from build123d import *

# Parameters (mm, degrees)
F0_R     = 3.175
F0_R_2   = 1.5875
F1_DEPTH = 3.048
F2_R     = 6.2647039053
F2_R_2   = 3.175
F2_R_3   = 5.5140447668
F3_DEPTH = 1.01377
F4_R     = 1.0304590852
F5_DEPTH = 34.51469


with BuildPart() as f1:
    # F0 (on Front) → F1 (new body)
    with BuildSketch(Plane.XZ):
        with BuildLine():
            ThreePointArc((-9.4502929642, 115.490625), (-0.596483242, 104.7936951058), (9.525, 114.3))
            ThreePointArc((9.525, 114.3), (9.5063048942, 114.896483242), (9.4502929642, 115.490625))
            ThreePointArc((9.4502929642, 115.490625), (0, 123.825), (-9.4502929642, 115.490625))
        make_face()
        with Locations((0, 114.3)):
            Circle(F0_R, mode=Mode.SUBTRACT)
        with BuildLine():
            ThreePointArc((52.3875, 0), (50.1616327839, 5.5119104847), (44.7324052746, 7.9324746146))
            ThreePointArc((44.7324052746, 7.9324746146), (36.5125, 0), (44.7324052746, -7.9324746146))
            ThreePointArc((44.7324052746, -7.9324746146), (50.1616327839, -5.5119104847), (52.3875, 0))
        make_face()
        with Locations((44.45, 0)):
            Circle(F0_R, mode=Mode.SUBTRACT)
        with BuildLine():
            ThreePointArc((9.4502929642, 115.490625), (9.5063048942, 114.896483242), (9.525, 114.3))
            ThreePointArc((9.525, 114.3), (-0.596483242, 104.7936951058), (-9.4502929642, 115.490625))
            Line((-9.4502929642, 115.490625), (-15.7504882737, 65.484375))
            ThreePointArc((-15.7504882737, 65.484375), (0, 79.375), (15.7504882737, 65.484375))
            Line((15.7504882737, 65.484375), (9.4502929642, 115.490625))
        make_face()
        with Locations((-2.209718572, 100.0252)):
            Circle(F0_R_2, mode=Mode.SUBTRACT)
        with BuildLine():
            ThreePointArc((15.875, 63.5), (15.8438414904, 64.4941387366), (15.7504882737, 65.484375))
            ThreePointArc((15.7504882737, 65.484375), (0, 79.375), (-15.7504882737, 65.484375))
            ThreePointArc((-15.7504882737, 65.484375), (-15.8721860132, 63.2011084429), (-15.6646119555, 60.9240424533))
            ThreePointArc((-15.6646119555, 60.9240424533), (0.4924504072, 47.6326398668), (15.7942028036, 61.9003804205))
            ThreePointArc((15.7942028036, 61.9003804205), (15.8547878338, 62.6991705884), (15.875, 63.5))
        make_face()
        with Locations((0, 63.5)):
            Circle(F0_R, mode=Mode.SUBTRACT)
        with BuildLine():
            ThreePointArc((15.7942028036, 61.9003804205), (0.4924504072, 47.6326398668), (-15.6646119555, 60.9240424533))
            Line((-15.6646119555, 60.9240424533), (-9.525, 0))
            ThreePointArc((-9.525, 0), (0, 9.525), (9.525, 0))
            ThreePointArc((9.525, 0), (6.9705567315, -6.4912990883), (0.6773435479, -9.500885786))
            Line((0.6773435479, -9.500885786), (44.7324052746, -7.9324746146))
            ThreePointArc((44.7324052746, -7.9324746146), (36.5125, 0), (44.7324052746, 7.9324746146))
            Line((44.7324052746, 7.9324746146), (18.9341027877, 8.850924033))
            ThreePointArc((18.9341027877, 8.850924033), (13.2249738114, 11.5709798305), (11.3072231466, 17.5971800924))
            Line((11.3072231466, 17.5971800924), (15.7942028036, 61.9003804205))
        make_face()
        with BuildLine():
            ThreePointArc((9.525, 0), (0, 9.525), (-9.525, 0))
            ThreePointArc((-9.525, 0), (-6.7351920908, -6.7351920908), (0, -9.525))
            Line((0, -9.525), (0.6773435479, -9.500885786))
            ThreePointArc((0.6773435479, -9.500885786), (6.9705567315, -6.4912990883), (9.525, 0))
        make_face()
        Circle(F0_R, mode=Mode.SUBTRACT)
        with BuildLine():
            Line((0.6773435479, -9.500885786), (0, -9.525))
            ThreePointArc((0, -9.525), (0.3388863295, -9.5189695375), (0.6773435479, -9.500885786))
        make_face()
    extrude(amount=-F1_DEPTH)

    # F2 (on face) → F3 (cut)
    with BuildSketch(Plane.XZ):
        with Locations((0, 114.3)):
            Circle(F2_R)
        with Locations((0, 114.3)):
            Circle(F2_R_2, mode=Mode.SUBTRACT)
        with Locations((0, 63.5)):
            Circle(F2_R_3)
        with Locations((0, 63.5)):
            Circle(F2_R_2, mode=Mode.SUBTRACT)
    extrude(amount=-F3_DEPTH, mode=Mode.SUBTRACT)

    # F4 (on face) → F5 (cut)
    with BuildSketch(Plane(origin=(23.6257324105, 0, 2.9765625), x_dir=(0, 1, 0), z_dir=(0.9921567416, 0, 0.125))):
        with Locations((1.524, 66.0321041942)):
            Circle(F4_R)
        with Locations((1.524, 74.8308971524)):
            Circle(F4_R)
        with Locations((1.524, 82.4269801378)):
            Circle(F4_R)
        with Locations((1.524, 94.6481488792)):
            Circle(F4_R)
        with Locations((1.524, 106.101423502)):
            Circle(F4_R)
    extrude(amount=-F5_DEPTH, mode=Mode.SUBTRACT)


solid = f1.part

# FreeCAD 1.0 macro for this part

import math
import FreeCAD as App
import Part
import Sketcher
from FreeCAD import Vector
Q = App.Units.Quantity

doc = App.newDocument("Part")
body = doc.addObject("PartDesign::Body", "Body")

# Sketch on XZ plane
sketch1 = body.newObject("Sketcher::SketchObject", "Sketch")
sketch1.AttachmentSupport = (doc.getObject("XZ_Plane"), [""])
sketch1.MapMode = "FlatFace"
sketch1.addGeometry(Part.ArcOfCircle(Part.Circle(Vector(0, 114.3, 0), Vector(0, 0, 1), 9.5), math.radians(7), math.radians(173)), False)
sketch1.addGeometry(Part.LineSegment(Vector(-9.5, 115.5, 0), Vector(-15.8, 65.5, 0)), False)
sketch1.addGeometry(Part.ArcOfCircle(Part.Circle(Vector(0, 63.5, 0), Vector(0, 0, 1), 15.9), math.radians(172.82), math.radians(189.34)), False)
sketch1.addGeometry(Part.LineSegment(Vector(-15.7, 60.9, 0), Vector(-9.5, 0, 0)), False)
sketch1.addGeometry(Part.ArcOfCircle(Part.Circle(Vector(0, 0, 0), Vector(0, 0, 1), 9.5), math.radians(180), math.radians(270)), False)
sketch1.addGeometry(Part.ArcOfCircle(Part.Circle(Vector(0, 0, 0), Vector(0, 0, 1), 9.5), math.radians(-90), math.radians(-85.92)), False)
sketch1.addGeometry(Part.LineSegment(Vector(0.7, -9.5, 0), Vector(44.7, -7.9, 0)), False)
sketch1.addGeometry(Part.ArcOfCircle(Part.Circle(Vector(44.5, 0, 0), Vector(0, 0, 1), 7.9), math.radians(-88), math.radians(0)), False)
sketch1.addGeometry(Part.ArcOfCircle(Part.Circle(Vector(44.5, 0, 0), Vector(0, 0, 1), 7.9), math.radians(0), math.radians(88)), False)
sketch1.addGeometry(Part.LineSegment(Vector(44.7, 7.9, 0), Vector(18.9, 8.9, 0)), False)
sketch1.addGeometry(Part.ArcOfCircle(Part.Circle(Vector(19.2, 16.8, 0), Vector(0, 0, 1), 8), math.radians(174), math.radians(268)), False)
sketch1.addGeometry(Part.LineSegment(Vector(11.3, 17.6, 0), Vector(15.8, 61.9, 0)), False)
sketch1.addGeometry(Part.ArcOfCircle(Part.Circle(Vector(0, 63.5, 0), Vector(0, 0, 1), 15.9), math.radians(-5.78), math.radians(0)), False)
sketch1.addGeometry(Part.ArcOfCircle(Part.Circle(Vector(0, 63.5, 0), Vector(0, 0, 1), 15.9), math.radians(0), math.radians(7.18)), False)
sketch1.addGeometry(Part.LineSegment(Vector(15.8, 65.5, 0), Vector(9.5, 115.5, 0)), False)
sketch1.addGeometry(Part.Circle(Vector(0, 0, 0), Vector(0, 0, 1), 3.2), False)
sketch1.addGeometry(Part.Circle(Vector(44.5, 0, 0), Vector(0, 0, 1), 3.2), False)
sketch1.addGeometry(Part.Circle(Vector(0, 63.5, 0), Vector(0, 0, 1), 3.2), False)
sketch1.addGeometry(Part.Circle(Vector(-2.2, 100, 0), Vector(0, 0, 1), 1.6), False)
sketch1.addGeometry(Part.Circle(Vector(0, 114.3, 0), Vector(0, 0, 1), 3.2), False)
sketch1.addConstraint(Sketcher.Constraint("Tangent", 0, 2, 1, 1))
sketch1.addConstraint(Sketcher.Constraint("Tangent", 1, 2, 2, 1))
sketch1.addConstraint(Sketcher.Constraint("Coincident", 2, 2, 3, 1))
sketch1.addConstraint(Sketcher.Constraint("Coincident", 3, 2, 4, 1))
sketch1.addConstraint(Sketcher.Constraint("Tangent", 4, 2, 5, 1))
sketch1.addConstraint(Sketcher.Constraint("Coincident", 5, 2, 6, 1))
sketch1.addConstraint(Sketcher.Constraint("Tangent", 6, 2, 7, 1))
sketch1.addConstraint(Sketcher.Constraint("Tangent", 7, 2, 8, 1))
sketch1.addConstraint(Sketcher.Constraint("Tangent", 8, 2, 9, 1))
sketch1.addConstraint(Sketcher.Constraint("Tangent", 9, 2, 10, 2))
sketch1.addConstraint(Sketcher.Constraint("Tangent", 10, 1, 11, 1))
sketch1.addConstraint(Sketcher.Constraint("Tangent", 11, 2, 12, 1))
sketch1.addConstraint(Sketcher.Constraint("Tangent", 12, 2, 13, 1))
sketch1.addConstraint(Sketcher.Constraint("Tangent", 13, 2, 14, 1))
sketch1.addConstraint(Sketcher.Constraint("Tangent", 14, 2, 0, 1))
sketch1.addConstraint(Sketcher.Constraint("Coincident", 4, 3, -1, 1))
sketch1.addConstraint(Sketcher.Constraint("Coincident", 15, 3, -1, 1))
sketch1.addConstraint(Sketcher.Constraint("Coincident", 12, 3, 2, 3))
sketch1.addConstraint(Sketcher.Constraint("Coincident", 16, 3, 7, 3))
sketch1.addConstraint(Sketcher.Constraint("Coincident", 17, 3, 2, 3))
sketch1.addConstraint(Sketcher.Constraint("Coincident", 19, 3, 0, 3))
sketch1.addConstraint(Sketcher.Constraint("Equal", 0, 4))
sketch1.addConstraint(Sketcher.Constraint("Equal", 4, 5))
sketch1.addConstraint(Sketcher.Constraint("Equal", 7, 8))
sketch1.addConstraint(Sketcher.Constraint("Equal", 2, 12))
sketch1.addConstraint(Sketcher.Constraint("Equal", 12, 13))
sketch1.addConstraint(Sketcher.Constraint("Equal", 15, 16))
sketch1.addConstraint(Sketcher.Constraint("Equal", 16, 17))
sketch1.addConstraint(Sketcher.Constraint("Equal", 17, 19))
sketch1.addConstraint(Sketcher.Constraint("Symmetric", 1, 2, 13, 2, -2))
sketch1.addConstraint(Sketcher.Constraint("Symmetric", 6, 2, 8, 2, -1))
sketch1.addConstraint(Sketcher.Constraint("PointOnObject", 3, 2, -1))
sketch1.addConstraint(Sketcher.Constraint("PointOnObject", 4, 2, -2))
sketch1.addConstraint(Sketcher.Constraint("PointOnObject", 7, 2, -1))
sketch1.addConstraint(Sketcher.Constraint("Horizontal", 17, 3, 12, 2))
sketch1.addConstraint(Sketcher.Constraint("Diameter", 15, Q("0.25 in")))
sketch1.addConstraint(Sketcher.Constraint("Diameter", 18, Q("0.125 in")))
sketch1.addConstraint(Sketcher.Constraint("Radius", 0, Q("0.375 in")))
sketch1.addConstraint(Sketcher.Constraint("Radius", 2, Q("0.625 in")))
sketch1.addConstraint(Sketcher.Constraint("Radius", 7, Q("0.3125 in")))
sketch1.addConstraint(Sketcher.Constraint("Radius", 10, Q("0.313 in")))
sketch1.addConstraint(Sketcher.Constraint("DistanceY", 2, 3, 0, 3, Q("2 in")))
sketch1.addConstraint(Sketcher.Constraint("DistanceY", -1, 1, 0, 3, Q("4.5 in")))
sketch1.addConstraint(Sketcher.Constraint("DistanceX", -1, 1, 7, 3, Q("1.75 in")))
sketch1.addConstraint(Sketcher.Constraint("DistanceY", -1, 1, 18, 3, Q("3.938 in")))
sketch1.addConstraint(Sketcher.Constraint("Distance", 3, Q("61.23262 mm")))
sketch1.addConstraint(Sketcher.Constraint("Distance", 6, Q("44.082972 mm")))
sketch1.addConstraint(Sketcher.Constraint("Distance", 11, Q("44.529839 mm")))
sketch1.addConstraint(Sketcher.Constraint("DistanceX", 18, 3, -1, 1, Q("2.209719 mm")))
pad1 = body.newObject("PartDesign::Pad", "Pad")
pad1.Profile = sketch1
pad1.Length = Q("0.12 in")
pad1.Reversed = True

# Sketch on XZ plane
sketch2 = body.newObject("Sketcher::SketchObject", "Sketch001")
sketch2.AttachmentSupport = (doc.getObject("XZ_Plane"), [""])
sketch2.MapMode = "FlatFace"
sketch2.addGeometry(Part.Circle(Vector(0, 114.3, 0), Vector(0, 0, 1), 6.3), False)
sketch2.addGeometry(Part.Circle(Vector(0, 114.3, 0), Vector(0, 0, 1), 3.2), False)
sketch2.addGeometry(Part.Circle(Vector(0, 63.5, 0), Vector(0, 0, 1), 5.5), False)
sketch2.addGeometry(Part.Circle(Vector(0, 63.5, 0), Vector(0, 0, 1), 3.2), False)
sketch2.addConstraint(Sketcher.Constraint("Coincident", 1, 3, 0, 3))
sketch2.addConstraint(Sketcher.Constraint("Coincident", 3, 3, 2, 3))
sketch2.addConstraint(Sketcher.Constraint("Equal", 1, 3))
sketch2.addConstraint(Sketcher.Constraint("PointOnObject", 0, 3, -2))
sketch2.addConstraint(Sketcher.Constraint("PointOnObject", 2, 3, -2))
sketch2.addConstraint(Sketcher.Constraint("Diameter", 1, Q("0.25 in")))
sketch2.addConstraint(Sketcher.Constraint("DistanceY", 2, 3, 0, 3, Q("2 in")))
sketch2.addConstraint(Sketcher.Constraint("DistanceY", -1, 1, 0, 3, Q("4.5 in")))
sketch2.addConstraint(Sketcher.Constraint("Diameter", 2, Q("11.02809 mm")))
sketch2.addConstraint(Sketcher.Constraint("Diameter", 0, Q("12.529408 mm")))
pocket1 = body.newObject("PartDesign::Pocket", "Pocket")
pocket1.Profile = sketch2
pocket1.Length = 1.01377

# Sketch on an angled plane
sketch3 = body.newObject("Sketcher::SketchObject", "Sketch002")
sketch3.Placement = App.Placement(Vector(23.625732, 0, 2.976562), App.Rotation(Vector(0, 1, 0), Vector(-0.125, 0, 0.992156742), Vector(0.992156742, 0, 0.125), "ZXY"))
sketch3.addGeometry(Part.Circle(Vector(1.5, 66, 0), Vector(0, 0, 1), 1), False)
sketch3.addGeometry(Part.Circle(Vector(1.5, 74.8, 0), Vector(0, 0, 1), 1), False)
sketch3.addGeometry(Part.Circle(Vector(1.5, 82.4, 0), Vector(0, 0, 1), 1), False)
sketch3.addGeometry(Part.Circle(Vector(1.5, 94.6, 0), Vector(0, 0, 1), 1), False)
sketch3.addGeometry(Part.Circle(Vector(1.5, 106.1, 0), Vector(0, 0, 1), 1), False)
sketch3.addConstraint(Sketcher.Constraint("Equal", 0, 1))
sketch3.addConstraint(Sketcher.Constraint("Equal", 1, 2))
sketch3.addConstraint(Sketcher.Constraint("Equal", 2, 3))
sketch3.addConstraint(Sketcher.Constraint("Equal", 3, 4))
sketch3.addConstraint(Sketcher.Constraint("Vertical", 0, 3, 1, 3))
sketch3.addConstraint(Sketcher.Constraint("Vertical", 1, 3, 2, 3))
sketch3.addConstraint(Sketcher.Constraint("Vertical", 2, 3, 3, 3))
sketch3.addConstraint(Sketcher.Constraint("Vertical", 3, 3, 4, 3))
sketch3.addConstraint(Sketcher.Constraint("DistanceX", -1, 1, 0, 3, Q("0.06 in")))
sketch3.addConstraint(Sketcher.Constraint("Diameter", 0, Q("2.060918 mm")))
sketch3.addConstraint(Sketcher.Constraint("DistanceY", -1, 1, 2, 3, Q("82.42698 mm")))
sketch3.addConstraint(Sketcher.Constraint("DistanceY", -1, 1, 3, 3, Q("94.648149 mm")))
sketch3.addConstraint(Sketcher.Constraint("DistanceY", 1, 3, 3, 3, Q("19.817252 mm")))
sketch3.addConstraint(Sketcher.Constraint("DistanceY", 0, 3, 4, 3, Q("40.069319 mm")))
sketch3.addConstraint(Sketcher.Constraint("DistanceY", -1, 1, 0, 3, Q("66.032104 mm")))
pocket2 = body.newObject("PartDesign::Pocket", "Pocket001")
pocket2.Profile = sketch3
pocket2.Length = 34.51469

doc.recompute()
